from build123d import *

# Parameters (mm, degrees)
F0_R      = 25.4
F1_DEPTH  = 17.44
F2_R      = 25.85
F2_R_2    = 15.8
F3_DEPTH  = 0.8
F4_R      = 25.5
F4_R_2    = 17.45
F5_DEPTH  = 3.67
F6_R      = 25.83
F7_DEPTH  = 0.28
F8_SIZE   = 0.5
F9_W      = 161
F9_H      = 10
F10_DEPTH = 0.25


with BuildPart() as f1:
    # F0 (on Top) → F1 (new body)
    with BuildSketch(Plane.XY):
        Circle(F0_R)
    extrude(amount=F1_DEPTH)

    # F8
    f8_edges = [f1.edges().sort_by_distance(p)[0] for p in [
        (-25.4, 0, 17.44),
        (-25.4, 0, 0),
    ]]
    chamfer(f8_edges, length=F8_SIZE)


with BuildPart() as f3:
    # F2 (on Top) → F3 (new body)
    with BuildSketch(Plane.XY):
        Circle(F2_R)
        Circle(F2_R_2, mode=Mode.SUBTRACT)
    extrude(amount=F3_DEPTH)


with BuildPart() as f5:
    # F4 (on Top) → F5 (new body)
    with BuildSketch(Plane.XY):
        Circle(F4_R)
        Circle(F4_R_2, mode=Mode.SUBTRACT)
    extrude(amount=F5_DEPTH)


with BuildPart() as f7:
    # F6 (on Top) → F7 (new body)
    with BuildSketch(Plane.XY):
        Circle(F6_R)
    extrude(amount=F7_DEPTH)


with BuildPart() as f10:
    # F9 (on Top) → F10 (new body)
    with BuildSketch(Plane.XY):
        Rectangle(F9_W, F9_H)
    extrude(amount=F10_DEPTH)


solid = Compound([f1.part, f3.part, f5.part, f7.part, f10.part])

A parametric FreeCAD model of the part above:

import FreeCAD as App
import Part
import Sketcher


def edges_at(feature, points):
    """Names of the edges that pass closest to the given points."""
    edges = feature.Shape.Edges
    near = lambda p: min(range(len(edges)), key=lambda i: edges[i].distToShape(Part.Vertex(*p))[0])
    return sorted({f"Edge{near(p) + 1}" for p in points})

doc = App.newDocument("Part")
body = doc.addObject("PartDesign::Body", "Body")

# Sketch on XY plane
sketch1 = body.newObject("Sketcher::SketchObject", "Sketch")
sketch1.AttachmentSupport = (doc.getObject("XY_Plane"), [""])
sketch1.MapMode = "FlatFace"
sketch1.addGeometry(Part.Circle(App.Vector(0, 0, 0), App.Vector(0, 0, 1), 25), False)
sketch1.addConstraint([
    Sketcher.Constraint("Coincident", 0, 3, -1, 1),
    Sketcher.Constraint("Diameter", 0, 50.8),
])
pad1 = body.newObject("PartDesign::Pad", "Pad")
pad1.Profile = sketch1
pad1.Length = 17.44
doc.recompute()

chamfer = body.newObject("PartDesign::Chamfer", "Chamfer")
chamfer.Base = (pad1, edges_at(pad1, [(-25.4, 0, 17.44), (-25.4, 0, 0)]))
chamfer.Size = 0.5
body2 = doc.addObject("PartDesign::Body", "Body001")

# Sketch on XY plane
sketch2 = body2.newObject("Sketcher::SketchObject", "Sketch001")
sketch2.AttachmentSupport = (doc.getObject("XY_Plane001"), [""])
sketch2.MapMode = "FlatFace"
sketch2.addGeometry([
    Part.Circle(App.Vector(0, 0, 0), App.Vector(0, 0, 1), 26),
    Part.Circle(App.Vector(0, 0, 0), App.Vector(0, 0, 1), 16),
], False)
sketch2.addConstraint([
    Sketcher.Constraint("Coincident", 0, 3, -1, 1),
    Sketcher.Constraint("Coincident", 1, 3, -1, 1),
    Sketcher.Constraint("Diameter", 0, 51.7),
    Sketcher.Constraint("Diameter", 1, 31.6),
])
pad2 = body2.newObject("PartDesign::Pad", "Pad001")
pad2.Profile = sketch2
pad2.Length = 0.8
body3 = doc.addObject("PartDesign::Body", "Body002")

# Sketch on XY plane
sketch3 = body3.newObject("Sketcher::SketchObject", "Sketch002")
sketch3.AttachmentSupport = (doc.getObject("XY_Plane002"), [""])
sketch3.MapMode = "FlatFace"
sketch3.addGeometry([
    Part.Circle(App.Vector(0, 0, 0), App.Vector(0, 0, 1), 26),
    Part.Circle(App.Vector(0, 0, 0), App.Vector(0, 0, 1), 17),
], False)
sketch3.addConstraint([
    Sketcher.Constraint("Coincident", 0, 3, -1, 1),
    Sketcher.Constraint("Coincident", 1, 3, -1, 1),
    Sketcher.Constraint("Diameter", 0, 51.0),
    Sketcher.Constraint("Diameter", 1, 34.9),
])
pad3 = body3.newObject("PartDesign::Pad", "Pad002")
pad3.Profile = sketch3
pad3.Length = 3.67
body4 = doc.addObject("PartDesign::Body", "Body003")

# Sketch on XY plane
sketch4 = body4.newObject("Sketcher::SketchObject", "Sketch003")
sketch4.AttachmentSupport = (doc.getObject("XY_Plane003"), [""])
sketch4.MapMode = "FlatFace"
sketch4.addGeometry(Part.Circle(App.Vector(0, 0, 0), App.Vector(0, 0, 1), 26), False)
sketch4.addConstraint([
    Sketcher.Constraint("Coincident", 0, 3, -1, 1),
    Sketcher.Constraint("Diameter", 0, 51.66),
])
pad4 = body4.newObject("PartDesign::Pad", "Pad003")
pad4.Profile = sketch4
pad4.Length = 0.28
body5 = doc.addObject("PartDesign::Body", "Body004")

# Sketch on XY plane
sketch5 = body5.newObject("Sketcher::SketchObject", "Sketch004")
sketch5.AttachmentSupport = (doc.getObject("XY_Plane004"), [""])
sketch5.MapMode = "FlatFace"
sketch5.addGeometry([
    Part.LineSegment(App.Vector(-80, 5, 0), App.Vector(-80, -5, 0)),
    Part.LineSegment(App.Vector(-80, -5, 0), App.Vector(80, -5, 0)),
    Part.LineSegment(App.Vector(80, -5, 0), App.Vector(80, 5, 0)),
    Part.LineSegment(App.Vector(80, 5, 0), App.Vector(-80, 5, 0)),
], False)
sketch5.addConstraint([
    Sketcher.Constraint("Coincident", 0, 2, 1, 1),
    Sketcher.Constraint("Coincident", 1, 2, 2, 1),
    Sketcher.Constraint("Coincident", 2, 2, 3, 1),
    Sketcher.Constraint("Coincident", 3, 2, 0, 1),
    Sketcher.Constraint("Vertical", 0),
    Sketcher.Constraint("Horizontal", 1),
    Sketcher.Constraint("Vertical", 2),
    Sketcher.Constraint("Horizontal", 3),
    Sketcher.Constraint("Symmetric", 0, 2, 2, 2, -1, 1),
    Sketcher.Constraint("DistanceX", 1, 1, 1, 2, 161.0),
    Sketcher.Constraint("DistanceY", 0, 2, 0, 1, 10.0),
])
pad5 = body5.newObject("PartDesign::Pad", "Pad004")
pad5.Profile = sketch5
pad5.Length = 0.25

doc.recompute()
